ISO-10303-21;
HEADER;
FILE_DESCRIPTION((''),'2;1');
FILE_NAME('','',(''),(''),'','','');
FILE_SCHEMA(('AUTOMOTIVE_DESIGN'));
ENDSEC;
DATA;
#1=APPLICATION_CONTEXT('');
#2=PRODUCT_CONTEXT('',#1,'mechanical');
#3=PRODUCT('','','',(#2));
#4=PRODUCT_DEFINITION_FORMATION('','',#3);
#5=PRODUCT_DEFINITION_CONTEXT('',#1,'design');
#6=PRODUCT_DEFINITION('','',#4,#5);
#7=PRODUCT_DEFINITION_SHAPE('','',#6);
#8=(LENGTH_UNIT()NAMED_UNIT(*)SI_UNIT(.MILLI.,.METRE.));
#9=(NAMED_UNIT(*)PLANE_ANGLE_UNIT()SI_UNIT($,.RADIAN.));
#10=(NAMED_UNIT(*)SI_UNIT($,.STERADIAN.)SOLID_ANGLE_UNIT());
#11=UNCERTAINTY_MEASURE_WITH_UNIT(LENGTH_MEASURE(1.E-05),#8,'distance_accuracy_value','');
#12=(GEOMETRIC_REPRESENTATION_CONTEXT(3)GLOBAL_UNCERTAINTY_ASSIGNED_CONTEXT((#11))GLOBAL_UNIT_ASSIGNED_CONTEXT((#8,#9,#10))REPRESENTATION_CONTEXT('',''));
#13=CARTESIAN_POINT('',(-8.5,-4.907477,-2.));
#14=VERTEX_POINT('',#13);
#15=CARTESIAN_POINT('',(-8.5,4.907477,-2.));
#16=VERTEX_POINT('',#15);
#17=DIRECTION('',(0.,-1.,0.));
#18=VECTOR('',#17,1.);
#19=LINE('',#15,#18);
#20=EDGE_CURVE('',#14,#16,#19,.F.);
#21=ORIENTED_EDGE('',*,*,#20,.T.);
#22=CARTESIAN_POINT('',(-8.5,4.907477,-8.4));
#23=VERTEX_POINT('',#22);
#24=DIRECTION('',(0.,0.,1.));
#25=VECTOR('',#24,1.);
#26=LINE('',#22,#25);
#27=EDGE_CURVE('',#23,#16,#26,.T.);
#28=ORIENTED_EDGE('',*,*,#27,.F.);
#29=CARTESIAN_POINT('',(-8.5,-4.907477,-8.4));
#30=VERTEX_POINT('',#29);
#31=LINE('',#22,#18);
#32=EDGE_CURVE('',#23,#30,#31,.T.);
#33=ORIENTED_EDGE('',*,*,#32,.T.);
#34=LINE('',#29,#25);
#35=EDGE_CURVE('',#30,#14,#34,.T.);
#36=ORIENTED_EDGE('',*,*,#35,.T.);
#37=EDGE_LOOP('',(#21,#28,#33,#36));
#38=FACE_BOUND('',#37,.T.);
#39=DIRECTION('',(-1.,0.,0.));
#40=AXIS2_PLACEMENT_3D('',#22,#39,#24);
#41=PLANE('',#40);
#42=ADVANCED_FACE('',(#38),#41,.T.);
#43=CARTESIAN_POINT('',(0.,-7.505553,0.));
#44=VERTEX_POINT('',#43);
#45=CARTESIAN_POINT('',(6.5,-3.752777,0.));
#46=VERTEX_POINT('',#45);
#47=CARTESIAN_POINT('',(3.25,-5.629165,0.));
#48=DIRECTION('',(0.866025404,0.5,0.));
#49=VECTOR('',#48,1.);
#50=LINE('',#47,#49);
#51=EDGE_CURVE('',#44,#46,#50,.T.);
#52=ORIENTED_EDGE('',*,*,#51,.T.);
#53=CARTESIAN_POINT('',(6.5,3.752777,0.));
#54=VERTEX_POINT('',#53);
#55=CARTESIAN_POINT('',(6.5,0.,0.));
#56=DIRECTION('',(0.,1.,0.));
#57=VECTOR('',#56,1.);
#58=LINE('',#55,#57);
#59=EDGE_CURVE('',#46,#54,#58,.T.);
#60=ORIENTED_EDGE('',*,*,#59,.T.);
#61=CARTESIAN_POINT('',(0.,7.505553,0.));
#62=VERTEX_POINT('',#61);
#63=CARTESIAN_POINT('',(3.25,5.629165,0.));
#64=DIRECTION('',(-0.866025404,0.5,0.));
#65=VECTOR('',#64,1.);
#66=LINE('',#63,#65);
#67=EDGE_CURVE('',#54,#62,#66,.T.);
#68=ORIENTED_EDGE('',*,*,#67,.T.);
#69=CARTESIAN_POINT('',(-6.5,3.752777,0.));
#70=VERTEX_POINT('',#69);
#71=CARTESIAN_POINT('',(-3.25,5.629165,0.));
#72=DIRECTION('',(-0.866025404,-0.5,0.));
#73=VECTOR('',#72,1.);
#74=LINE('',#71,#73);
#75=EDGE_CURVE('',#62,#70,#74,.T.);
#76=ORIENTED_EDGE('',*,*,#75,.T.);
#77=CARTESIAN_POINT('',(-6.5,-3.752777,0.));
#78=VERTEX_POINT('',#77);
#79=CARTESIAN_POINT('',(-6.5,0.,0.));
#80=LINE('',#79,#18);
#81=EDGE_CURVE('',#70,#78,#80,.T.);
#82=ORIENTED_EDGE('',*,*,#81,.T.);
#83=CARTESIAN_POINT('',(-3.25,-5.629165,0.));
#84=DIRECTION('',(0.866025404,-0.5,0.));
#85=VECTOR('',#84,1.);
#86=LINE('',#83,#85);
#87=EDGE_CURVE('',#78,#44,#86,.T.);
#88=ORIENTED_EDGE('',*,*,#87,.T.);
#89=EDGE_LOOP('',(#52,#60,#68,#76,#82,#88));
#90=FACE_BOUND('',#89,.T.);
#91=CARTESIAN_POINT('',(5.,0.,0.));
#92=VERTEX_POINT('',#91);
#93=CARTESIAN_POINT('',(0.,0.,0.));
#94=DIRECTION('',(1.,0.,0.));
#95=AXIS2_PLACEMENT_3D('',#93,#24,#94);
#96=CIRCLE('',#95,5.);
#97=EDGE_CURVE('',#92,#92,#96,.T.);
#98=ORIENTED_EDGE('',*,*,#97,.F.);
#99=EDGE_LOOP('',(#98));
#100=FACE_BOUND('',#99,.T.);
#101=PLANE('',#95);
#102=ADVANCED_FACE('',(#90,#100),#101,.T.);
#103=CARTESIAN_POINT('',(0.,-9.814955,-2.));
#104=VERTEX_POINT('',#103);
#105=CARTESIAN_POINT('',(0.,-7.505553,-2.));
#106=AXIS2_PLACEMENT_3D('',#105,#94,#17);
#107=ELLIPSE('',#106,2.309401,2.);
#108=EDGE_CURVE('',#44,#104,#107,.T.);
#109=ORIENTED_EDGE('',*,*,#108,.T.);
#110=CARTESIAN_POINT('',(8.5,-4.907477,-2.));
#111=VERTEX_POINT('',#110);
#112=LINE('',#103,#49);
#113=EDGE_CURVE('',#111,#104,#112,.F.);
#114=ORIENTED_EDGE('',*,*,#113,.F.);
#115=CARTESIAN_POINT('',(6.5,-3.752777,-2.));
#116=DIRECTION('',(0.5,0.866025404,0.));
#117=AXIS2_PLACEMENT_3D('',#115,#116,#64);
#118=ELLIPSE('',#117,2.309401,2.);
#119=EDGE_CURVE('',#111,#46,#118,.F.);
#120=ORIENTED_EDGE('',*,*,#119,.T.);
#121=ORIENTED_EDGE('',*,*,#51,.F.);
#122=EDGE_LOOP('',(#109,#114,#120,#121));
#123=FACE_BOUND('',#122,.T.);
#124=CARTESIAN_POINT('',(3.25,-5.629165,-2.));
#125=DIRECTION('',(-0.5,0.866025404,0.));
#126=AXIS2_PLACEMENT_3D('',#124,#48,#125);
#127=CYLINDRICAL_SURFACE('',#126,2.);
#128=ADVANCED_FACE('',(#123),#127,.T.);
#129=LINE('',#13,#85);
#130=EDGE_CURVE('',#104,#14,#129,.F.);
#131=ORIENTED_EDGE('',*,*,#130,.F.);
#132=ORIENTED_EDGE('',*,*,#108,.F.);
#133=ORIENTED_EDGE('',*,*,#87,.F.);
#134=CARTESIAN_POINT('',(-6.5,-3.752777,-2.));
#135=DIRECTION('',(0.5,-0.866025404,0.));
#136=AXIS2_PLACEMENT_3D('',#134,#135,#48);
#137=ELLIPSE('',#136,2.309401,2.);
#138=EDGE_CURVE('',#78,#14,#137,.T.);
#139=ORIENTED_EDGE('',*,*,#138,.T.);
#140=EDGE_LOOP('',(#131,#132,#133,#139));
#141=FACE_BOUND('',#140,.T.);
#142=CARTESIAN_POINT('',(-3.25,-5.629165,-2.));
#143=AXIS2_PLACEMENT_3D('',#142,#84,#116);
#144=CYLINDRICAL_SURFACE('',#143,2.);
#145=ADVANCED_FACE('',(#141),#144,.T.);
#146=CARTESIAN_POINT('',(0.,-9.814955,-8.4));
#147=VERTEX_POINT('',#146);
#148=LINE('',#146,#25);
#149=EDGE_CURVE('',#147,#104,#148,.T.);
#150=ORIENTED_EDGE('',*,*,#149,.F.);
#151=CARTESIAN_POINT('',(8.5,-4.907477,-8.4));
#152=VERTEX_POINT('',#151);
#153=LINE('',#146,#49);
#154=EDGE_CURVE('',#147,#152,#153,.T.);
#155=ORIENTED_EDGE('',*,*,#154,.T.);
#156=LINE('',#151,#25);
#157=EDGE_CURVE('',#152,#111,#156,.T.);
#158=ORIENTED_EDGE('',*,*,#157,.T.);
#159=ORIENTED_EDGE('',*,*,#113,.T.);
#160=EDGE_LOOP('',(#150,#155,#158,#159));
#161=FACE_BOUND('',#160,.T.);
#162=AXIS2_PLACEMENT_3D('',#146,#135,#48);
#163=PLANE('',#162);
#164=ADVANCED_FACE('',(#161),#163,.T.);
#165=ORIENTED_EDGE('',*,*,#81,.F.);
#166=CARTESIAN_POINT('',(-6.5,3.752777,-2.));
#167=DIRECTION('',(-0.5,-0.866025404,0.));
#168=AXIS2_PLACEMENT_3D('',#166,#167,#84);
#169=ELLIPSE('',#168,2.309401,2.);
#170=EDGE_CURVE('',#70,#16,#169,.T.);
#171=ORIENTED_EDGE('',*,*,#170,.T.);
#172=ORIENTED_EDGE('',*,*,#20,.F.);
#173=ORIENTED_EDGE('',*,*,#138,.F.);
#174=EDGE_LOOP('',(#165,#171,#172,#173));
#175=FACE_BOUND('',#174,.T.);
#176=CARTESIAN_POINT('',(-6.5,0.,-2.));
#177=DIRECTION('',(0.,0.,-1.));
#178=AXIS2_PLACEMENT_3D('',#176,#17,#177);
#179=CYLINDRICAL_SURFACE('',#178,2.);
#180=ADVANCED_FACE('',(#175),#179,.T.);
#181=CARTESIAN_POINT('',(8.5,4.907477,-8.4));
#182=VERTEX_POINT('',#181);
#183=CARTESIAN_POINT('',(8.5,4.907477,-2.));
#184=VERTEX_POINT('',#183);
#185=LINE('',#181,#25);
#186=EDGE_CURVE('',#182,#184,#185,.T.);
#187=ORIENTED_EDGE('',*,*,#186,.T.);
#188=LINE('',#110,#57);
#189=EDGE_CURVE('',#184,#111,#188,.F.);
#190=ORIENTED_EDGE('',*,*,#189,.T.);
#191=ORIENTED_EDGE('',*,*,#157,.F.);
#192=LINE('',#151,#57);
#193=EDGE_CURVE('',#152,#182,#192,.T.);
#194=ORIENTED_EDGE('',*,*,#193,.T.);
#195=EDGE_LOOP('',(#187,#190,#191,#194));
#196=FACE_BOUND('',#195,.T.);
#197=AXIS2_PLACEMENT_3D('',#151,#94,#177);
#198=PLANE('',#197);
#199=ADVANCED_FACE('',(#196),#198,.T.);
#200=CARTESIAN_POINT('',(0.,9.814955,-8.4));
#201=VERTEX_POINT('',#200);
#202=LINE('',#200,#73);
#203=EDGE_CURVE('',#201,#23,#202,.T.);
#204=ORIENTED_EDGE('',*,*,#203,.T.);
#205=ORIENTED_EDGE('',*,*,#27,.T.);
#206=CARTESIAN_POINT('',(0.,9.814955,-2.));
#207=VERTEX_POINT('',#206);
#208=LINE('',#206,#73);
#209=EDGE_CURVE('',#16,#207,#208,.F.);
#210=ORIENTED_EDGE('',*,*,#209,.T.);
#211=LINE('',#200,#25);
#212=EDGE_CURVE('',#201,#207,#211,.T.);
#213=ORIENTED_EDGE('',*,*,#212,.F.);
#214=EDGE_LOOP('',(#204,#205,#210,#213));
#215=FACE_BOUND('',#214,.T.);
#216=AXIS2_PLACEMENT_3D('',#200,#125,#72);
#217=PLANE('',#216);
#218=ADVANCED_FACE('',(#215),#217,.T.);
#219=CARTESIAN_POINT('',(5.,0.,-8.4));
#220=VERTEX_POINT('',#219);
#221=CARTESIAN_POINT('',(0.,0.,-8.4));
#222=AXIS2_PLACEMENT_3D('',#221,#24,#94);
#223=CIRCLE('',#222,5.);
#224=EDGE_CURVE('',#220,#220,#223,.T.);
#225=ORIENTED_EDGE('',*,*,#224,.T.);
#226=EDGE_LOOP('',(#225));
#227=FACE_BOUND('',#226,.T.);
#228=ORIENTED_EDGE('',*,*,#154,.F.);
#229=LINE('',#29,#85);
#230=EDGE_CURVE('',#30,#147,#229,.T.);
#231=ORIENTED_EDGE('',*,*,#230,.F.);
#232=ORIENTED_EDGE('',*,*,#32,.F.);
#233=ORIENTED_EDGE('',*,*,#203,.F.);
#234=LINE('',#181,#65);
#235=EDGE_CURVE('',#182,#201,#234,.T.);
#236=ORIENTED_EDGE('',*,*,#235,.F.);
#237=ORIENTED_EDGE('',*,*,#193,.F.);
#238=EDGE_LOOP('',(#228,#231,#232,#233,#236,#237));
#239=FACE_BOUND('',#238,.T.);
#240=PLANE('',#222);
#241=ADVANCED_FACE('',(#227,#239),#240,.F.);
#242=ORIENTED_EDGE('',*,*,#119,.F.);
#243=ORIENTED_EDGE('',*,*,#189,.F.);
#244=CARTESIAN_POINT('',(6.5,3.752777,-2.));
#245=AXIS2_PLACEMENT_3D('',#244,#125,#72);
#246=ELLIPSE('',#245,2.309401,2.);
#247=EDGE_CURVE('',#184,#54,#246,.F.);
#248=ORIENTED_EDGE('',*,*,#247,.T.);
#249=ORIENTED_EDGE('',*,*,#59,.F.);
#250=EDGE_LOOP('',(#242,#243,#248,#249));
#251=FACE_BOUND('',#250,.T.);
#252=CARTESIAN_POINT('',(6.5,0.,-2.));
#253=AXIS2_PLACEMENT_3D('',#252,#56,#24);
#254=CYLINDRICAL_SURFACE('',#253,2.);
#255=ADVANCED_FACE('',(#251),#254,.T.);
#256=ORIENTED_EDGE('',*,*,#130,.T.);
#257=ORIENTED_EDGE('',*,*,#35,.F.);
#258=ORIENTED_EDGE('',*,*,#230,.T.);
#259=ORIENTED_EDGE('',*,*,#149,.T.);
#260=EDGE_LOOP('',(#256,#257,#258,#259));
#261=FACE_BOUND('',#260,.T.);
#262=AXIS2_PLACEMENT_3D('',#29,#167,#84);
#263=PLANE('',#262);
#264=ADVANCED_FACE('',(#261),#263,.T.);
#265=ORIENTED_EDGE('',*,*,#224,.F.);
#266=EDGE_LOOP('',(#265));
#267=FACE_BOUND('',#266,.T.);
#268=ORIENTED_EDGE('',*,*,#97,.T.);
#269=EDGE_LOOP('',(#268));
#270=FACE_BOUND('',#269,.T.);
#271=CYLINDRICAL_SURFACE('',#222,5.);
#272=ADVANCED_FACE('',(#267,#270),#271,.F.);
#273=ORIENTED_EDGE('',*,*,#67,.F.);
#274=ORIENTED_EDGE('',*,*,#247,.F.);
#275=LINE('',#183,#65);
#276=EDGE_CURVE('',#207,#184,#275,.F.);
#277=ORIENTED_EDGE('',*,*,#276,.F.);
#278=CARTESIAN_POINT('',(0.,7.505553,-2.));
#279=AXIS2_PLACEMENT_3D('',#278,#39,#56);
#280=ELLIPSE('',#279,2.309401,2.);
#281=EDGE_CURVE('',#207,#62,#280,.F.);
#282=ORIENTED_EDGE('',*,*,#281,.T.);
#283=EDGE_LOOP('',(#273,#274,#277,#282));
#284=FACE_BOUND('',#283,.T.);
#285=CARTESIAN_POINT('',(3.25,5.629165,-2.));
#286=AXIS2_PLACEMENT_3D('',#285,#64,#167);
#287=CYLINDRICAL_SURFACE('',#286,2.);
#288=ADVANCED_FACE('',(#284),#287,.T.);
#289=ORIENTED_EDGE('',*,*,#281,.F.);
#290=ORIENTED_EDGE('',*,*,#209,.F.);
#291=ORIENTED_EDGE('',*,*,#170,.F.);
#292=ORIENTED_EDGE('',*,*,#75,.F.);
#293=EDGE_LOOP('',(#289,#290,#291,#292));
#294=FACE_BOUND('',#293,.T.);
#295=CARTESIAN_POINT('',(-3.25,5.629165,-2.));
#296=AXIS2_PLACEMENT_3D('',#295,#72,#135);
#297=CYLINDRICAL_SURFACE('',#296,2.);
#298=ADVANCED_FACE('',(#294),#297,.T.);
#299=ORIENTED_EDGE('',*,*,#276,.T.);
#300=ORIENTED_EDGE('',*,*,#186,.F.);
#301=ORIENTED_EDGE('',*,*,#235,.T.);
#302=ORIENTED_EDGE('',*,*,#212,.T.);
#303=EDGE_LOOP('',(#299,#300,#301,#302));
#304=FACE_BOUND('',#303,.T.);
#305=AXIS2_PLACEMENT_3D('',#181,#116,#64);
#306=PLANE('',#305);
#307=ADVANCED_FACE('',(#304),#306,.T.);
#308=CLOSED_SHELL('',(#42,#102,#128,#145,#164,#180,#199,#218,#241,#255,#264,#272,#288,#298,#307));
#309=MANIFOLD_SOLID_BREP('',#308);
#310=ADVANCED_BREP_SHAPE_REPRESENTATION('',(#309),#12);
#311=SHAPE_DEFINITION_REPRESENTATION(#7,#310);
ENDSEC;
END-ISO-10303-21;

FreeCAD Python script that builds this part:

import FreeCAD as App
import Part
import Sketcher

V = App.Vector
Q = App.Units.Quantity


def edges_at(feature, points):
    """Names of the edges that pass closest to the given points."""
    edges = feature.Shape.Edges
    near = lambda p: min(range(len(edges)), key=lambda i: edges[i].distToShape(Part.Vertex(*p))[0])
    return sorted({f"Edge{near(p) + 1}" for p in points})

doc = App.newDocument("Part")
body = doc.addObject("PartDesign::Body", "Body")

sketch1 = doc.addObject("Sketcher::SketchObject", "Sketch")
body.addObject(sketch1)
sketch1.AttachmentSupport = (doc.XY_Plane, [""])
sketch1.MapMode = "FlatFace"
sketch1.addGeometry(Part.LineSegment(V(8, 5, 0), V(0, 10, 0)), False)
sketch1.addGeometry(Part.LineSegment(V(0, 10, 0), V(-8, 5, 0)), False)
sketch1.addGeometry(Part.LineSegment(V(-8, 5, 0), V(-8, -5, 0)), False)
sketch1.addGeometry(Part.LineSegment(V(-8, -5, 0), V(0, -10, 0)), False)
sketch1.addGeometry(Part.LineSegment(V(0, -10, 0), V(8, -5, 0)), False)
sketch1.addGeometry(Part.LineSegment(V(8, -5, 0), V(8, 5, 0)), False)
sketch1.addGeometry(Part.Circle(V(0, 0, 0), V(0, 0, 1), 5), False)
sketch1.addConstraint(Sketcher.Constraint("Coincident", 0, 2, 1, 1))
sketch1.addConstraint(Sketcher.Constraint("Coincident", 1, 2, 2, 1))
sketch1.addConstraint(Sketcher.Constraint("Coincident", 2, 2, 3, 1))
sketch1.addConstraint(Sketcher.Constraint("Coincident", 3, 2, 4, 1))
sketch1.addConstraint(Sketcher.Constraint("Coincident", 4, 2, 5, 1))
sketch1.addConstraint(Sketcher.Constraint("Coincident", 5, 2, 0, 1))
sketch1.addConstraint(Sketcher.Constraint("Vertical", 2))
sketch1.addConstraint(Sketcher.Constraint("Vertical", 5))
sketch1.addConstraint(Sketcher.Constraint("Coincident", 6, 3, -1, 1))
sketch1.addConstraint(Sketcher.Constraint("Symmetric", 0, 2, 3, 2, -1, 1))
sketch1.addConstraint(Sketcher.Constraint("Symmetric", 1, 2, 4, 2, -1, 1))
sketch1.addConstraint(Sketcher.Constraint("PointOnObject", 0, 2, -2))
sketch1.addConstraint(Sketcher.Constraint("Parallel", 0, 3))
sketch1.addConstraint(Sketcher.Constraint("Horizontal", 2, 2, 4, 2))
sketch1.addConstraint(Sketcher.Constraint("Diameter", 6, 10.0))
sketch1.addConstraint(Sketcher.Constraint("Angle", 0, Q("150 deg")))
sketch1.addConstraint(Sketcher.Constraint("DistanceX", 2, 2, 4, 2, 17.0))
sketch1.addConstraint(Sketcher.Constraint("DistanceY", 2, 2, 2, 1, 9.814955))
pad1 = doc.addObject("PartDesign::Pad", "Pad")
body.addObject(pad1)
pad1.Profile = sketch1
pad1.Length = 8.4
pad1.Reversed = True
doc.recompute()

fillet = doc.addObject("PartDesign::Fillet", "Fillet")
body.addObject(fillet)
fillet.Base = (pad1, edges_at(pad1, [
    (4.25, -7.361, 0),
    (-4.25, -7.361, 0),
    (-8.5, 0, 0),
    (-4.25, 7.361, 0),
    (4.25, 7.361, 0),
    (8.5, 0, 0),
]))
fillet.Radius = 2

doc.recompute()
